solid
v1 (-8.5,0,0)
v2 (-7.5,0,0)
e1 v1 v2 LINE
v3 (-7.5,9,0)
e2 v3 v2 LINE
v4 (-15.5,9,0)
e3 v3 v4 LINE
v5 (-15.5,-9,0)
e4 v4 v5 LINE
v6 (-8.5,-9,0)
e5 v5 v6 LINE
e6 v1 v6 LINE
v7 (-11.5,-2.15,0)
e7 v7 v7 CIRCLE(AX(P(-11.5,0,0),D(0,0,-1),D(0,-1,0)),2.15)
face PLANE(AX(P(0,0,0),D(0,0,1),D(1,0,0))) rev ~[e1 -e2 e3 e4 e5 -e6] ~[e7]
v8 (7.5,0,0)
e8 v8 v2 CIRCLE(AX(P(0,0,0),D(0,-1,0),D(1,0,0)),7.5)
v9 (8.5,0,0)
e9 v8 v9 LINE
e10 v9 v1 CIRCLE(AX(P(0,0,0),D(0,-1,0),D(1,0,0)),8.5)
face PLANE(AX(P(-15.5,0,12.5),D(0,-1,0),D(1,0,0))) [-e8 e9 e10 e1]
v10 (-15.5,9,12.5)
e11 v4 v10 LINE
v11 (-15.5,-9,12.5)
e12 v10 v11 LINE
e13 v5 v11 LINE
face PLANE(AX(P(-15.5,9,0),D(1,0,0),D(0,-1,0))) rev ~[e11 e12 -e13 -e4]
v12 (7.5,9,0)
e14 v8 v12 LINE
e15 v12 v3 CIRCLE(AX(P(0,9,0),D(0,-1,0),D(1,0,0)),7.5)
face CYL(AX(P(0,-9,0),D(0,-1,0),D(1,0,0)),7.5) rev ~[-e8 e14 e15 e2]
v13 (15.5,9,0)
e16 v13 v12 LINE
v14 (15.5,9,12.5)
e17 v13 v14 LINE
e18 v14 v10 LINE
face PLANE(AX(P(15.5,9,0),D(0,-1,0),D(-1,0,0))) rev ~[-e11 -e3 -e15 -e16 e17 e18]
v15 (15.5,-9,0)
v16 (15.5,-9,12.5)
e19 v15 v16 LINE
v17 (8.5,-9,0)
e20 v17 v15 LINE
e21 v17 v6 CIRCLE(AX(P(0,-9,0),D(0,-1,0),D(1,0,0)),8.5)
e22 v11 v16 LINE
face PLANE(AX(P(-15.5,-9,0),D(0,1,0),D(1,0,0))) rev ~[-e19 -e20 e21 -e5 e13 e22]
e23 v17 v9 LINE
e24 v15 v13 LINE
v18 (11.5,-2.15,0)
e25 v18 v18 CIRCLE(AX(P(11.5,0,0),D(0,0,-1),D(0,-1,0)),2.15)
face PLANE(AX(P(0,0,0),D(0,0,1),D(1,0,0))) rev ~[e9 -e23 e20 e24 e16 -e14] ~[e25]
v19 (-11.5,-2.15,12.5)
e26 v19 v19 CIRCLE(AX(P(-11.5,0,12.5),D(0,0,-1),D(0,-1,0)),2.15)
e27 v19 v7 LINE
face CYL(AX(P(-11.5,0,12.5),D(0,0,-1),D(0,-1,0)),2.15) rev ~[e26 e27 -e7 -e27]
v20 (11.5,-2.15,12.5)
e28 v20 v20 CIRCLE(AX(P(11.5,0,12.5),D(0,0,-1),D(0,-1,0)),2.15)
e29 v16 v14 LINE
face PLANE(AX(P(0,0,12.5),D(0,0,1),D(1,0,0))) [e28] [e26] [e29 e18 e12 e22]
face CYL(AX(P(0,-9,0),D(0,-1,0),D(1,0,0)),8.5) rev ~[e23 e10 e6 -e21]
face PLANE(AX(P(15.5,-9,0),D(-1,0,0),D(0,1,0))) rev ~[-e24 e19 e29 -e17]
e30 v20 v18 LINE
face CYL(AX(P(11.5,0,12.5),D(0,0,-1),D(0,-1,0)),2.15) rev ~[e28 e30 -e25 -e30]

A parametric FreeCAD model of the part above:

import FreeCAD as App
import Part
import Sketcher

V = App.Vector

doc = App.newDocument("Part")
body = doc.addObject("PartDesign::Body", "Body")

# Sketch on XY plane
sketch1 = body.newObject("Sketcher::SketchObject", "Sketch")
sketch1.AttachmentSupport = (doc.getObject("XY_Plane"), [""])
sketch1.MapMode = "FlatFace"
sketch1.addGeometry(Part.LineSegment(V(-15.5, 9, 0), V(-15.5, -9, 0)), False)
sketch1.addGeometry(Part.LineSegment(V(-15.5, -9, 0), V(15.5, -9, 0)), False)
sketch1.addGeometry(Part.LineSegment(V(15.5, -9, 0), V(15.5, 9, 0)), False)
sketch1.addGeometry(Part.LineSegment(V(15.5, 9, 0), V(-15.5, 9, 0)), False)
sketch1.addConstraint(Sketcher.Constraint("Coincident", 0, 2, 1, 1))
sketch1.addConstraint(Sketcher.Constraint("Coincident", 1, 2, 2, 1))
sketch1.addConstraint(Sketcher.Constraint("Coincident", 2, 2, 3, 1))
sketch1.addConstraint(Sketcher.Constraint("Coincident", 3, 2, 0, 1))
sketch1.addConstraint(Sketcher.Constraint("Vertical", 0))
sketch1.addConstraint(Sketcher.Constraint("Horizontal", 1))
sketch1.addConstraint(Sketcher.Constraint("Vertical", 2))
sketch1.addConstraint(Sketcher.Constraint("Horizontal", 3))
sketch1.addConstraint(Sketcher.Constraint("Symmetric", 0, 2, 2, 2, -1, 1))
sketch1.addConstraint(Sketcher.Constraint("DistanceX", 1, 1, 1, 2, 31.0))
sketch1.addConstraint(Sketcher.Constraint("DistanceY", 0, 2, 0, 1, 18.0))
pad1 = body.newObject("PartDesign::Pad", "Pad")
pad1.Profile = sketch1
pad1.Length = 12.5

# Sketch on XZ plane
sketch2 = body.newObject("Sketcher::SketchObject", "Sketch001")
sketch2.AttachmentSupport = (doc.getObject("XZ_Plane"), [""])
sketch2.MapMode = "FlatFace"
sketch2.AttachmentOffset = App.Placement(V(0, 0, 9), App.Rotation())
sketch2.addGeometry(Part.Circle(V(0, 0, 0), V(0, 0, 1), 7.5), False)
sketch2.addConstraint(Sketcher.Constraint("Coincident", 0, 3, -1, 1))
sketch2.addConstraint(Sketcher.Constraint("Diameter", 0, 15.0))
pocket1 = body.newObject("PartDesign::Pocket", "Pocket")
pocket1.Profile = sketch2
pocket1.Type = "ThroughAll"

# Sketch on XY plane
sketch3 = body.newObject("Sketcher::SketchObject", "Sketch002")
sketch3.AttachmentSupport = (doc.getObject("XY_Plane"), [""])
sketch3.MapMode = "FlatFace"
sketch3.AttachmentOffset = App.Placement(V(0, 0, 12.5), App.Rotation())
sketch3.addGeometry(Part.Circle(V(-11.5, 0, 0), V(0, 0, 1), 2.15), False)
sketch3.addGeometry(Part.Circle(V(11.5, 0, 0), V(0, 0, 1), 2.15), False)
sketch3.addConstraint(Sketcher.Constraint("Equal", 0, 1))
sketch3.addConstraint(Sketcher.Constraint("Symmetric", 0, 3, 1, 3, -1, 1))
sketch3.addConstraint(Sketcher.Constraint("PointOnObject", 0, 3, -1))
sketch3.addConstraint(Sketcher.Constraint("Diameter", 0, 4.3))
sketch3.addConstraint(Sketcher.Constraint("DistanceX", 0, 3, 1, 3, 23.0))
doc.recompute()
hole = body.newObject("PartDesign::Hole", "Hole")
hole.Profile = sketch3
hole.ThreadType = "None"
hole.Diameter = 4.3
hole.DepthType = "ThroughAll"

# Sketch on XZ plane
sketch4 = body.newObject("Sketcher::SketchObject", "Sketch003")
sketch4.AttachmentSupport = (doc.getObject("XZ_Plane"), [""])
sketch4.MapMode = "FlatFace"
sketch4.AttachmentOffset = App.Placement(V(0, 0, 9), App.Rotation())
sketch4.addGeometry(Part.Circle(V(0, 0, 0), V(0, 0, 1), 8.5), False)
sketch4.addConstraint(Sketcher.Constraint("Coincident", 0, 3, -1, 1))
sketch4.addConstraint(Sketcher.Constraint("Diameter", 0, 17.0))
pocket2 = body.newObject("PartDesign::Pocket", "Pocket001")
pocket2.Profile = sketch4
pocket2.Length = 9

doc.recompute()
